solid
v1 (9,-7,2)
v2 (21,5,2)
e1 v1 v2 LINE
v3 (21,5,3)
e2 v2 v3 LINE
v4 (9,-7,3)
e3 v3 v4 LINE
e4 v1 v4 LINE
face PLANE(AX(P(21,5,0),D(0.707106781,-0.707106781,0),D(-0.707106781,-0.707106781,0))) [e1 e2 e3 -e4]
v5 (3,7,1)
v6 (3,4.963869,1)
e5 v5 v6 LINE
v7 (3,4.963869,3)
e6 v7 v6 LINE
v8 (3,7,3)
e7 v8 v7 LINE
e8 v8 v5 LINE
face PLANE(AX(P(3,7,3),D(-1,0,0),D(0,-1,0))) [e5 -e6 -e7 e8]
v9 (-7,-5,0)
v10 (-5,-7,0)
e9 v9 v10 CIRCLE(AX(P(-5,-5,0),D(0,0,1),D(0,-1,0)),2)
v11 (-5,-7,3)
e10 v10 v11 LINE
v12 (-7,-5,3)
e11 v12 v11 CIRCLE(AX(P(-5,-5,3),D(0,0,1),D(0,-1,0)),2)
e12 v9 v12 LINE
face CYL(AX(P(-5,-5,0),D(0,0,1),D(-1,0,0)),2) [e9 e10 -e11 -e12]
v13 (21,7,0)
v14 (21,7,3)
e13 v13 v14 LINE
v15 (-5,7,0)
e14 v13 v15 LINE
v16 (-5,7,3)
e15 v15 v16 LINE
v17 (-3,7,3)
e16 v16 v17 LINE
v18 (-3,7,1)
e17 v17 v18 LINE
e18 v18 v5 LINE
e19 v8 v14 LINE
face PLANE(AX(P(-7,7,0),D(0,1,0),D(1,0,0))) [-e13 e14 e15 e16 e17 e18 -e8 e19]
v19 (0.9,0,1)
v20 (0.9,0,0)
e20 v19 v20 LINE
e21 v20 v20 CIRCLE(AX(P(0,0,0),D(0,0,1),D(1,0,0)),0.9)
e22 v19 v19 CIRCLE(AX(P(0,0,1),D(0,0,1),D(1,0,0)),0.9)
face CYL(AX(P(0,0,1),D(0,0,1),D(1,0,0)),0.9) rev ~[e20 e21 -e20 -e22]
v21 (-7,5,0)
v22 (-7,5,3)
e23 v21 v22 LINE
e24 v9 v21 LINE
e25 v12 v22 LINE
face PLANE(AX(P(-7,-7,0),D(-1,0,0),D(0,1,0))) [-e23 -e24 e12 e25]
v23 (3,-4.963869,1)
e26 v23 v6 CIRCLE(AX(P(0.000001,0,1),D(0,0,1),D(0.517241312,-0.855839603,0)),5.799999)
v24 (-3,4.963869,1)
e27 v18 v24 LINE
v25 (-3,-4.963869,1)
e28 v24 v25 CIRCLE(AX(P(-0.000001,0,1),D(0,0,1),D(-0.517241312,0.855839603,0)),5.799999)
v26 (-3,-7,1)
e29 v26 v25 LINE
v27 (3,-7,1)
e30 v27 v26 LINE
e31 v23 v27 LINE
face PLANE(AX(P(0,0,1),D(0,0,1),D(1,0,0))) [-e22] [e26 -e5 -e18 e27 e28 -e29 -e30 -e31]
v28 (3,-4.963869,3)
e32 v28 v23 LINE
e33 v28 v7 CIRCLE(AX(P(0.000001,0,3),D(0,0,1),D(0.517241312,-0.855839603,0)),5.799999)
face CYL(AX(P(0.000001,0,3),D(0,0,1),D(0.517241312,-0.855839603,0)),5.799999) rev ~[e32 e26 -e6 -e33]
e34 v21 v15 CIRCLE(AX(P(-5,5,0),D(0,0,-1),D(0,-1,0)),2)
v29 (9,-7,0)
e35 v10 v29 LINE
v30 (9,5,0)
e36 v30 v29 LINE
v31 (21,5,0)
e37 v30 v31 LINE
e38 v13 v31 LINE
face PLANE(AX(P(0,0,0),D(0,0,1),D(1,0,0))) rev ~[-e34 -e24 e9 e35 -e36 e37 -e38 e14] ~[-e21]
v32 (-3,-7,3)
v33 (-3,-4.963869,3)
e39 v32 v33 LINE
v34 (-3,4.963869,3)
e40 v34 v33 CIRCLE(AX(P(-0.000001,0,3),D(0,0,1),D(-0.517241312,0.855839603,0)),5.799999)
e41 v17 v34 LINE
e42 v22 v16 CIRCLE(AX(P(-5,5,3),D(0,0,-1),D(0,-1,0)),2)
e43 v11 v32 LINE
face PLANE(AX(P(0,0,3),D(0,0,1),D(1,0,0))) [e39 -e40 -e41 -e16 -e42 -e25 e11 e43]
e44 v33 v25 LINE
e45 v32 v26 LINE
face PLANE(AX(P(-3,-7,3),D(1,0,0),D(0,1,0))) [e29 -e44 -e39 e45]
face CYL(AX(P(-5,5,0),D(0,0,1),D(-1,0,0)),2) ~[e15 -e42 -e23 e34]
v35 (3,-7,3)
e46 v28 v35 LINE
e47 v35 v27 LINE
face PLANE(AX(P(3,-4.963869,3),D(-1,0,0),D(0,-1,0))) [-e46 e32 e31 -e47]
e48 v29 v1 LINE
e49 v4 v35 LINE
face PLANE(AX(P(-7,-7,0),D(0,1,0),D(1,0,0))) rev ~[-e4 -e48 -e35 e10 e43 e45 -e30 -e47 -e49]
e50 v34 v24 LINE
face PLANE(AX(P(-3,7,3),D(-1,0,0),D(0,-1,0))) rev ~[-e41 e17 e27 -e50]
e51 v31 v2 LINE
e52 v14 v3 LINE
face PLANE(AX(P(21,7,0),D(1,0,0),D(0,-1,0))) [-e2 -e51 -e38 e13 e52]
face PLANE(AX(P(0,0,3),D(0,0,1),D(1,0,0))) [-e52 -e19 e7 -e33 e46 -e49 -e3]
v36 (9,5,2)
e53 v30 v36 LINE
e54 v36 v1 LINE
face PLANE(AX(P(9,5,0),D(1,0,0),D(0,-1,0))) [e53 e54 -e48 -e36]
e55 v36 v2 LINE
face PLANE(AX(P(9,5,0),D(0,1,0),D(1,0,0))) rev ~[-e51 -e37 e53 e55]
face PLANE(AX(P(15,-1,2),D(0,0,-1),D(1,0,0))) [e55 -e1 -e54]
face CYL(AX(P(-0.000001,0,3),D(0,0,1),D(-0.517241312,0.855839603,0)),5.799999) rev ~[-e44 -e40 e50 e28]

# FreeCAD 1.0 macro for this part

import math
import FreeCAD as App
import Part
import Sketcher

V = App.Vector


def edges_at(feature, points):
    """Names of the edges that pass closest to the given points."""
    edges = feature.Shape.Edges
    near = lambda p: min(range(len(edges)), key=lambda i: edges[i].distToShape(Part.Vertex(*p))[0])
    return sorted({f"Edge{near(p) + 1}" for p in points})

doc = App.newDocument("Part")
body = doc.addObject("PartDesign::Body", "Body")

# Sketch on XY plane
sketch1 = doc.addObject("Sketcher::SketchObject", "Sketch")
body.addObject(sketch1)
sketch1.AttachmentSupport = (doc.XY_Plane, [""])
sketch1.MapMode = "FlatFace"
sketch1.addGeometry(Part.LineSegment(V(-7, 7, 0), V(-7, -7, 0)), False)
sketch1.addGeometry(Part.LineSegment(V(-7, -7, 0), V(7, -7, 0)), False)
sketch1.addGeometry(Part.LineSegment(V(7, -7, 0), V(7, 7, 0)), False)
sketch1.addGeometry(Part.LineSegment(V(7, 7, 0), V(-7, 7, 0)), False)
sketch1.addConstraint(Sketcher.Constraint("Coincident", 0, 2, 1, 1))
sketch1.addConstraint(Sketcher.Constraint("Coincident", 1, 2, 2, 1))
sketch1.addConstraint(Sketcher.Constraint("Coincident", 2, 2, 3, 1))
sketch1.addConstraint(Sketcher.Constraint("Coincident", 3, 2, 0, 1))
sketch1.addConstraint(Sketcher.Constraint("Vertical", 0))
sketch1.addConstraint(Sketcher.Constraint("Horizontal", 1))
sketch1.addConstraint(Sketcher.Constraint("Vertical", 2))
sketch1.addConstraint(Sketcher.Constraint("Horizontal", 3))
sketch1.addConstraint(Sketcher.Constraint("Symmetric", 0, 2, 2, 2, -1, 1))
sketch1.addConstraint(Sketcher.Constraint("Equal", 3, 0))
sketch1.addConstraint(Sketcher.Constraint("DistanceX", 1, 1, 1, 2, 14.0))
pad1 = doc.addObject("PartDesign::Pad", "Pad")
body.addObject(pad1)
pad1.Profile = sketch1
pad1.Length = 3

# Sketch on XY plane
sketch2 = doc.addObject("Sketcher::SketchObject", "Sketch001")
body.addObject(sketch2)
sketch2.AttachmentSupport = (doc.XY_Plane, [""])
sketch2.MapMode = "FlatFace"
sketch2.AttachmentOffset = App.Placement(V(0, 0, 3), App.Rotation())
sketch2.addGeometry(Part.LineSegment(V(-3, 7, 0), V(-3, 4.963869, 0)), False)
sketch2.addGeometry(Part.ArcOfCircle(Part.Circle(V(-0.000001, 0, 0), V(0, 0, 1), 5.799999), math.radians(121.147385), math.radians(238.852615)), False)
sketch2.addGeometry(Part.LineSegment(V(-3, -4.963869, 0), V(-3, -7, 0)), False)
sketch2.addGeometry(Part.LineSegment(V(-3, -7, 0), V(3, -7, 0)), False)
sketch2.addGeometry(Part.LineSegment(V(3, -7, 0), V(3, -4.963869, 0)), False)
sketch2.addGeometry(Part.ArcOfCircle(Part.Circle(V(0.000001, 0, 0), V(0, 0, 1), 5.799999), math.radians(-58.852615), math.radians(58.852615)), False)
sketch2.addGeometry(Part.LineSegment(V(3, 4.963869, 0), V(3, 7, 0)), False)
sketch2.addGeometry(Part.LineSegment(V(3, 7, 0), V(-3, 7, 0)), False)
sketch2.addConstraint(Sketcher.Constraint("Coincident", 0, 2, 1, 1))
sketch2.addConstraint(Sketcher.Constraint("Coincident", 1, 2, 2, 1))
sketch2.addConstraint(Sketcher.Constraint("Coincident", 2, 2, 3, 1))
sketch2.addConstraint(Sketcher.Constraint("Coincident", 3, 2, 4, 1))
sketch2.addConstraint(Sketcher.Constraint("Coincident", 4, 2, 5, 1))
sketch2.addConstraint(Sketcher.Constraint("Coincident", 5, 2, 6, 1))
sketch2.addConstraint(Sketcher.Constraint("Coincident", 6, 2, 7, 1))
sketch2.addConstraint(Sketcher.Constraint("Coincident", 7, 2, 0, 1))
sketch2.addConstraint(Sketcher.Constraint("Vertical", 0))
sketch2.addConstraint(Sketcher.Constraint("Vertical", 2))
sketch2.addConstraint(Sketcher.Constraint("Horizontal", 3))
sketch2.addConstraint(Sketcher.Constraint("Vertical", 4))
sketch2.addConstraint(Sketcher.Constraint("Vertical", 6))
sketch2.addConstraint(Sketcher.Constraint("Horizontal", 7))
sketch2.addConstraint(Sketcher.Constraint("Coincident", 1, 3, -1, 1))
sketch2.addConstraint(Sketcher.Constraint("Coincident", 5, 3, -1, 1))
sketch2.addConstraint(Sketcher.Constraint("Equal", 1, 5))
sketch2.addConstraint(Sketcher.Constraint("Symmetric", 2, 2, 6, 2, -1, 1))
sketch2.addConstraint(Sketcher.Constraint("Horizontal", 1, 2, 4, 2))
sketch2.addConstraint(Sketcher.Constraint("Horizontal", 0, 2, 5, 2))
sketch2.addConstraint(Sketcher.Constraint("Radius", 1, 5.799999))
sketch2.addConstraint(Sketcher.Constraint("DistanceX", 3, 1, 3, 2, 6.0))
sketch2.addConstraint(Sketcher.Constraint("DistanceY", 2, 2, -1, 1, 7.0))
pocket1 = doc.addObject("PartDesign::Pocket", "Pocket")
body.addObject(pocket1)
pocket1.Profile = sketch2
pocket1.Length = 2

# Sketch on XY plane
sketch3 = doc.addObject("Sketcher::SketchObject", "Sketch002")
body.addObject(sketch3)
sketch3.AttachmentSupport = (doc.XY_Plane, [""])
sketch3.MapMode = "FlatFace"
sketch3.AttachmentOffset = App.Placement(V(0, 0, 1), App.Rotation())
sketch3.addGeometry(Part.Circle(V(0, 0, 0), V(0, 0, 1), 0.9), False)
sketch3.addConstraint(Sketcher.Constraint("Coincident", 0, 3, -1, 1))
sketch3.addConstraint(Sketcher.Constraint("Diameter", 0, 1.8))
pocket2 = doc.addObject("PartDesign::Pocket", "Pocket001")
body.addObject(pocket2)
pocket2.Profile = sketch3
pocket2.Type = "ThroughAll"
body2 = doc.addObject("PartDesign::Body", "Body001")

# Sketch on XY plane
sketch4 = doc.addObject("Sketcher::SketchObject", "Sketch003")
body2.addObject(sketch4)
sketch4.AttachmentSupport = (doc.getObject("XY_Plane001"), [""])
sketch4.MapMode = "FlatFace"
sketch4.addGeometry(Part.LineSegment(V(-7, 7, 0), V(-7, -7, 0)), False)
sketch4.addGeometry(Part.LineSegment(V(-7, -7, 0), V(-5, -7, 0)), False)
sketch4.addGeometry(Part.LineSegment(V(-5, -7, 0), V(7, 5, 0)), False)
sketch4.addGeometry(Part.LineSegment(V(7, 5, 0), V(7, 7, 0)), False)
sketch4.addGeometry(Part.LineSegment(V(7, 7, 0), V(-7, 7, 0)), False)
sketch4.addConstraint(Sketcher.Constraint("Coincident", 0, 2, 1, 1))
sketch4.addConstraint(Sketcher.Constraint("Coincident", 1, 2, 2, 1))
sketch4.addConstraint(Sketcher.Constraint("Coincident", 2, 2, 3, 1))
sketch4.addConstraint(Sketcher.Constraint("Coincident", 3, 2, 4, 1))
sketch4.addConstraint(Sketcher.Constraint("Coincident", 4, 2, 0, 1))
sketch4.addConstraint(Sketcher.Constraint("Vertical", 0))
sketch4.addConstraint(Sketcher.Constraint("Horizontal", 1))
sketch4.addConstraint(Sketcher.Constraint("Vertical", 3))
sketch4.addConstraint(Sketcher.Constraint("Horizontal", 4))
sketch4.addConstraint(Sketcher.Constraint("Symmetric", 0, 2, 3, 2, -1, 1))
sketch4.addConstraint(Sketcher.Constraint("Equal", 4, 0))
sketch4.addConstraint(Sketcher.Constraint("Equal", 1, 3))
sketch4.addConstraint(Sketcher.Constraint("DistanceX", 1, 1, 1, 2, 2.0))
sketch4.addConstraint(Sketcher.Constraint("DistanceX", 4, 2, 4, 1, 14.0))
pad2 = doc.addObject("PartDesign::Pad", "Pad001")
body2.addObject(pad2)
pad2.Profile = sketch4
pad2.Length = 3

# Sketch on XY plane
sketch5 = doc.addObject("Sketcher::SketchObject", "Sketch004")
body2.addObject(sketch5)
sketch5.AttachmentSupport = (doc.getObject("XY_Plane001"), [""])
sketch5.MapMode = "FlatFace"
sketch5.addGeometry(Part.LineSegment(V(-5, -7, 0), V(-5, 5, 0)), False)
sketch5.addGeometry(Part.LineSegment(V(-5, 5, 0), V(7, 5, 0)), False)
sketch5.addGeometry(Part.LineSegment(V(7, 5, 0), V(7, -7, 0)), False)
sketch5.addGeometry(Part.LineSegment(V(7, -7, 0), V(-5, -7, 0)), False)
sketch5.addConstraint(Sketcher.Constraint("Coincident", 0, 2, 1, 1))
sketch5.addConstraint(Sketcher.Constraint("Coincident", 1, 2, 2, 1))
sketch5.addConstraint(Sketcher.Constraint("Coincident", 2, 2, 3, 1))
sketch5.addConstraint(Sketcher.Constraint("Coincident", 3, 2, 0, 1))
sketch5.addConstraint(Sketcher.Constraint("Vertical", 0))
sketch5.addConstraint(Sketcher.Constraint("Horizontal", 1))
sketch5.addConstraint(Sketcher.Constraint("Vertical", 2))
sketch5.addConstraint(Sketcher.Constraint("Horizontal", 3))
sketch5.addConstraint(Sketcher.Constraint("Equal", 3, 0))
sketch5.addConstraint(Sketcher.Constraint("DistanceX", 1, 1, 1, 2, 12.0))
sketch5.addConstraint(Sketcher.Constraint("DistanceX", 0, 2, -1, 1, 5.0))
sketch5.addConstraint(Sketcher.Constraint("DistanceY", -1, 1, 0, 2, 5.0))
pocket3 = doc.addObject("PartDesign::Pocket", "Pocket002")
body2.addObject(pocket3)
pocket3.Profile = sketch5
pocket3.Length = 2
pocket3.Reversed = True
body3 = doc.addObject("PartDesign::Body", "Body002")
doc.recompute()

body2.Placement = App.Placement(V(14, 0, 0), App.Rotation(V(0, 0, 1), 0))
boolean = doc.addObject("PartDesign::Boolean", "Boolean")
body3.addObject(boolean)
boolean.Type = "Fuse"
boolean.addObjects([body2])
doc.recompute()

boolean2 = doc.addObject("PartDesign::Boolean", "Boolean001")
body3.addObject(boolean2)
boolean2.Type = "Fuse"
boolean2.addObjects([body])
doc.recompute()

fillet = doc.addObject("PartDesign::Fillet", "Fillet")
body3.addObject(fillet)
fillet.Base = (boolean2, edges_at(boolean2, [(-7, -7, 1.5), (-7, 7, 1.5)]))
fillet.Radius = 2

doc.recompute()
